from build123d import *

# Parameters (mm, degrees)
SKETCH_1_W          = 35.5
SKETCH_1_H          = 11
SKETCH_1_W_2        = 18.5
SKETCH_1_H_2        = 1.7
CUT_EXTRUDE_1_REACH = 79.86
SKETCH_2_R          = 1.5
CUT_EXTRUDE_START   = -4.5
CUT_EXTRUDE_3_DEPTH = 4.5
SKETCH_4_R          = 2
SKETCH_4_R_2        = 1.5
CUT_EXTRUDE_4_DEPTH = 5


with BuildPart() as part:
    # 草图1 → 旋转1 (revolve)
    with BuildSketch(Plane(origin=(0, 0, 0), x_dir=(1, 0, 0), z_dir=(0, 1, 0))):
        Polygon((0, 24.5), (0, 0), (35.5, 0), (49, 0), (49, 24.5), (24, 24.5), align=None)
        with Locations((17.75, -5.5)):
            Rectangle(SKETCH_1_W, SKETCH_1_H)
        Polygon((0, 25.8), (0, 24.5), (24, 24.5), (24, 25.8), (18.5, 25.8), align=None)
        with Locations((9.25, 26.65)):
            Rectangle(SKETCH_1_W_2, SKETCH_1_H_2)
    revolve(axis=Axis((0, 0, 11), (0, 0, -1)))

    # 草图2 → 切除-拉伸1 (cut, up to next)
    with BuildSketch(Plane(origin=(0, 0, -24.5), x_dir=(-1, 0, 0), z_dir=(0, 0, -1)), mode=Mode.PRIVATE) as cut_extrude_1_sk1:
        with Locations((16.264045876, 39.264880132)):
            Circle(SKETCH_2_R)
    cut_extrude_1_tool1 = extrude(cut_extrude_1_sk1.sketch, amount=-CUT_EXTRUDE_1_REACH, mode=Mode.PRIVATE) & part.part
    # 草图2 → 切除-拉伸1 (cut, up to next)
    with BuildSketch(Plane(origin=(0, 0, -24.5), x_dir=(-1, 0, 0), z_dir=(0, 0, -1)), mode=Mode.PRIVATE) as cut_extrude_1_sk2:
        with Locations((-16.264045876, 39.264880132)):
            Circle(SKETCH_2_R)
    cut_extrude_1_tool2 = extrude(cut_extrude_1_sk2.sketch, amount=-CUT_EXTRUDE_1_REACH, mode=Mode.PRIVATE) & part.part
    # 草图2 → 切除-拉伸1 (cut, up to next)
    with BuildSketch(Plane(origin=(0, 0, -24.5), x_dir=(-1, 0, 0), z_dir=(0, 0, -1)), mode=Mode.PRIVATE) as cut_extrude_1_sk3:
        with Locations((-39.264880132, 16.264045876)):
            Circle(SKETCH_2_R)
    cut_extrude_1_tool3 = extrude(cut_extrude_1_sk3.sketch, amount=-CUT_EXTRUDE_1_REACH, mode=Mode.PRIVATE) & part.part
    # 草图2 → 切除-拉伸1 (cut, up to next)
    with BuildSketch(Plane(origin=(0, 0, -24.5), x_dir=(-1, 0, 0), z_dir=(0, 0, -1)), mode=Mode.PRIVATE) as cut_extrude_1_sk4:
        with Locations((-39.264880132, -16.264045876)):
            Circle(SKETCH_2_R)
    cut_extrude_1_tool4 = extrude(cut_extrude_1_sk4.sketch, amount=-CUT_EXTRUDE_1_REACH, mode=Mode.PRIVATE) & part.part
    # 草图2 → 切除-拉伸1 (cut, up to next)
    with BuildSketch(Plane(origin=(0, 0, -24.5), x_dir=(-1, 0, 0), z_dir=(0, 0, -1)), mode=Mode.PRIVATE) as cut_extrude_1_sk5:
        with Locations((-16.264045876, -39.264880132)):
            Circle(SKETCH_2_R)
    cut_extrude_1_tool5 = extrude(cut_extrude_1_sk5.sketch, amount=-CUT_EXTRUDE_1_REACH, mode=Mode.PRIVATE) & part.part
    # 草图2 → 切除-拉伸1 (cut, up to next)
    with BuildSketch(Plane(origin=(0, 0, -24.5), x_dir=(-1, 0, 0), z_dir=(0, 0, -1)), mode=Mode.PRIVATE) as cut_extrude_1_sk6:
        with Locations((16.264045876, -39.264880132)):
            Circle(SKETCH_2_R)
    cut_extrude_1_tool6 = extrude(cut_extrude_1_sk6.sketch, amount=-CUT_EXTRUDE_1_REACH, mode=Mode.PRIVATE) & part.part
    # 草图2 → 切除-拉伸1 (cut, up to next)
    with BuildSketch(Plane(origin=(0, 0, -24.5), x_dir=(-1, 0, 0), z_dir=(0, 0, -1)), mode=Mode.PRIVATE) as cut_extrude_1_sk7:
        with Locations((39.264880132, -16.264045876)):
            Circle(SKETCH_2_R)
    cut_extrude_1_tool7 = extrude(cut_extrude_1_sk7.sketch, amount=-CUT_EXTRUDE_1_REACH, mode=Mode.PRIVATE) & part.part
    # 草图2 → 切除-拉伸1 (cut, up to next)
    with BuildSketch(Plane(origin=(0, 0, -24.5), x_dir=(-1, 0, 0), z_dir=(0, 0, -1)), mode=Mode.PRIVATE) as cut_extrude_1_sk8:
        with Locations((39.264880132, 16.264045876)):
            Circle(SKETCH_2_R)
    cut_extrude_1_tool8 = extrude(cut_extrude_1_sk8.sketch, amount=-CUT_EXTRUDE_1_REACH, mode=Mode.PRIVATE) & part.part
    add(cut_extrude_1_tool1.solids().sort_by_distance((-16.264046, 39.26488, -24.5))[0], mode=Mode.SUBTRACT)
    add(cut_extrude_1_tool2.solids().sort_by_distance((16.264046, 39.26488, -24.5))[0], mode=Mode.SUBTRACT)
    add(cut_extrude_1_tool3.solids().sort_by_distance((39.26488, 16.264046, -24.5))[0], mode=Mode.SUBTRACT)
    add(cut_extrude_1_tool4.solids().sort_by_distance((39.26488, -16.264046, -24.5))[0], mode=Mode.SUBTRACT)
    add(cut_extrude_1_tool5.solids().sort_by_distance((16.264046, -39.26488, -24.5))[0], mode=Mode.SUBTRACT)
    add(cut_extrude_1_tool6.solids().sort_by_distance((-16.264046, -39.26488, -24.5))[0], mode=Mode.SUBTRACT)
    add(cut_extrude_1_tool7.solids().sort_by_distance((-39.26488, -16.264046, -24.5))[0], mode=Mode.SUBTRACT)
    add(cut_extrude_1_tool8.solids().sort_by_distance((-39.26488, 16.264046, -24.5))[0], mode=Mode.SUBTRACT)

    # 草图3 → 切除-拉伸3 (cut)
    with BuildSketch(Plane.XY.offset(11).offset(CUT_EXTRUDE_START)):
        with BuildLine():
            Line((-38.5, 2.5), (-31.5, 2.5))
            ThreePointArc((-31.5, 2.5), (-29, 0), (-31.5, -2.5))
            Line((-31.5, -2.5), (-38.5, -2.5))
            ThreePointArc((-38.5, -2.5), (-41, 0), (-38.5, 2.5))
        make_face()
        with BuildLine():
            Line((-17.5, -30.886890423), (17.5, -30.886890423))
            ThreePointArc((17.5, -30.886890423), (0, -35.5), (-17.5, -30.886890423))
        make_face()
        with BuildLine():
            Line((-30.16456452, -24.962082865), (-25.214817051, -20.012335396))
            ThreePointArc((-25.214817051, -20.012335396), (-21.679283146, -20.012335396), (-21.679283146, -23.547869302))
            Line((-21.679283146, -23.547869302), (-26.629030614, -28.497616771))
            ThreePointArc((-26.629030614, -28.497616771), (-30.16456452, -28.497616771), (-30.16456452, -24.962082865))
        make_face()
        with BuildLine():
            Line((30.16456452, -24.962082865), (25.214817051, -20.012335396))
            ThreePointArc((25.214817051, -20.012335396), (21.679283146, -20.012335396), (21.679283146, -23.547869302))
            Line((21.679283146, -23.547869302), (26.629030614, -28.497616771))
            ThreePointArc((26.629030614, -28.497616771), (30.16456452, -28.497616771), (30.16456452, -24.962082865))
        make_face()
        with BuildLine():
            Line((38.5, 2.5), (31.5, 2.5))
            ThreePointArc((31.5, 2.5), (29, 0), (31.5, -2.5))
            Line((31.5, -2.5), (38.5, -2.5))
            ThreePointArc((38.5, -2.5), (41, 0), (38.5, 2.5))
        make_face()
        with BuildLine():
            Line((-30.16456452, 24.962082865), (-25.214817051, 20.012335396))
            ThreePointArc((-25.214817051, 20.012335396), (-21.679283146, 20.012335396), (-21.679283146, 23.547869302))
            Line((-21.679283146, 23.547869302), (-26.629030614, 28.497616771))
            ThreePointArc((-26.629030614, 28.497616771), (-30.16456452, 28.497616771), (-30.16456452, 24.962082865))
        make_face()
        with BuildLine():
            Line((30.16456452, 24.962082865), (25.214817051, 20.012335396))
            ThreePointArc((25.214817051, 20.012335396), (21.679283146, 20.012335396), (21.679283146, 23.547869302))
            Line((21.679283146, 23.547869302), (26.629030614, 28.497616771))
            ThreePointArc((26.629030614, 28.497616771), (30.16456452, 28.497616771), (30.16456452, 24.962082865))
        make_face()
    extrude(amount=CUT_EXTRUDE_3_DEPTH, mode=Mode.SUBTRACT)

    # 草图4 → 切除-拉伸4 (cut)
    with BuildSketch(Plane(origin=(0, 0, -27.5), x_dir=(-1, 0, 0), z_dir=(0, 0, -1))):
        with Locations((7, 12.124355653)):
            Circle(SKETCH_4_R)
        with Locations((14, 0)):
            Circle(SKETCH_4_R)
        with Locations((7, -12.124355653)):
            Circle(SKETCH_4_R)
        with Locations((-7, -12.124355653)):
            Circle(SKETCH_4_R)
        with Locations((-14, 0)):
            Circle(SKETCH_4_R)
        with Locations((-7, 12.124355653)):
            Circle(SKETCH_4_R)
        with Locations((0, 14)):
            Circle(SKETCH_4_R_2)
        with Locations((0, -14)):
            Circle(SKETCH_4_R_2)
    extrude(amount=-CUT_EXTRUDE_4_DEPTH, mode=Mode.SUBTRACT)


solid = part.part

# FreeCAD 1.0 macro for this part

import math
import FreeCAD as App
import Part
import Sketcher
Q = App.Units.Quantity


def add_polygon(sketch, points):
    """Adds a closed chain of lines whose ends are joined by coincident constraints."""
    first, n = sketch.GeometryCount, len(points)
    for a, b in zip(points, points[1:] + points[:1]):
        sketch.addGeometry(Part.LineSegment(App.Vector(*a, 0), App.Vector(*b, 0)), False)
    for i in range(n):
        sketch.addConstraint(Sketcher.Constraint("Coincident", first + i, 2, first + (i + 1) % n, 1))

doc = App.newDocument("Part")
body = doc.addObject("PartDesign::Body", "Body")

sketch1 = body.newObject("Sketcher::SketchObject", "Sketch")
sketch1.AttachmentSupport = (doc.getObject("XZ_Plane"), [""])
sketch1.MapMode = "FlatFace"
add_polygon(sketch1, [(0, 11), (35.5, 11), (35.5, 0), (49, 0), (49, -24.5), (24, -24.5), (24, -25.8), (18.5, -25.8), (18.5, -27.5), (0, -27.5)])
sketch1.addConstraint([
    Sketcher.Constraint("Horizontal", 0),
    Sketcher.Constraint("Vertical", 1),
    Sketcher.Constraint("Horizontal", 2),
    Sketcher.Constraint("Vertical", 3),
    Sketcher.Constraint("Horizontal", 4),
    Sketcher.Constraint("Vertical", 5),
    Sketcher.Constraint("Horizontal", 6),
    Sketcher.Constraint("Vertical", 7),
    Sketcher.Constraint("Horizontal", 8),
    Sketcher.Constraint("Vertical", 9),
    Sketcher.Constraint("PointOnObject", 1, 2, -1),
    Sketcher.Constraint("PointOnObject", 8, 2, -2),
    Sketcher.Constraint("DistanceX", 4, 2, 4, 1, Q("25 mm")),
    Sketcher.Constraint("DistanceY", 1, 2, 1, 1, Q("11 mm")),
    Sketcher.Constraint("DistanceX", 0, 1, 0, 2, Q("35.5 mm")),
    Sketcher.Constraint("DistanceX", 2, 1, 2, 2, Q("13.5 mm")),
    Sketcher.Constraint("DistanceX", 6, 2, 6, 1, Q("5.5 mm")),
    Sketcher.Constraint("DistanceY", 3, 2, 3, 1, Q("24.5 mm")),
    Sketcher.Constraint("DistanceY", 5, 2, 5, 1, Q("1.3 mm")),
    Sketcher.Constraint("DistanceY", 7, 2, 7, 1, Q("1.7 mm")),
])
revolution = body.newObject("PartDesign::Revolution", "Revolution")
revolution.Profile = sketch1
revolution.ReferenceAxis = (sketch1, ["V_Axis"])
revolution.Angle = 360

sketch2 = body.newObject("Sketcher::SketchObject", "Sketch001")
sketch2.AttachmentSupport = (doc.getObject("XY_Plane"), [""])
sketch2.MapMode = "FlatFace"
sketch2.AttachmentOffset = App.Placement(App.Vector(0, 0, -24.5), App.Rotation())
sketch2.addGeometry(Part.Circle(App.Vector(-16.3, 39.3, 0), App.Vector(0, 0, 1), 1.5), False)
sketch2.addConstraint([
    Sketcher.Constraint("Diameter", 0, Q("3 mm")),
    Sketcher.Constraint("DistanceY", -1, 1, 0, 3, Q("39.26488 mm")),
    Sketcher.Constraint("DistanceX", 0, 3, -1, 1, Q("16.264046 mm")),
])
pocket1 = body.newObject("PartDesign::Pocket", "Pocket")
pocket1.Profile = sketch2
pocket1.Type = "UpToFirst"
pocket1.Reversed = True

sketch3 = body.newObject("Sketcher::SketchObject", "Sketch002")
sketch3.AttachmentSupport = (doc.getObject("XY_Plane"), [""])
sketch3.MapMode = "FlatFace"
sketch3.AttachmentOffset = App.Placement(App.Vector(0, 0, -24.5), App.Rotation())
sketch3.addGeometry(Part.Circle(App.Vector(16.3, 39.3, 0), App.Vector(0, 0, 1), 1.5), False)
sketch3.addConstraint([
    Sketcher.Constraint("Diameter", 0, Q("3 mm")),
    Sketcher.Constraint("DistanceY", -1, 1, 0, 3, Q("39.26488 mm")),
    Sketcher.Constraint("DistanceX", -1, 1, 0, 3, Q("16.264046 mm")),
])
pocket2 = body.newObject("PartDesign::Pocket", "Pocket001")
pocket2.Profile = sketch3
pocket2.Type = "UpToFirst"
pocket2.Reversed = True

sketch4 = body.newObject("Sketcher::SketchObject", "Sketch003")
sketch4.AttachmentSupport = (doc.getObject("XY_Plane"), [""])
sketch4.MapMode = "FlatFace"
sketch4.AttachmentOffset = App.Placement(App.Vector(0, 0, -24.5), App.Rotation())
sketch4.addGeometry(Part.Circle(App.Vector(39.3, 16.3, 0), App.Vector(0, 0, 1), 1.5), False)
sketch4.addConstraint([
    Sketcher.Constraint("Diameter", 0, Q("3 mm")),
    Sketcher.Constraint("DistanceX", -1, 1, 0, 3, Q("39.26488 mm")),
    Sketcher.Constraint("DistanceY", -1, 1, 0, 3, Q("16.264046 mm")),
])
pocket3 = body.newObject("PartDesign::Pocket", "Pocket002")
pocket3.Profile = sketch4
pocket3.Type = "UpToFirst"
pocket3.Reversed = True

sketch5 = body.newObject("Sketcher::SketchObject", "Sketch004")
sketch5.AttachmentSupport = (doc.getObject("XY_Plane"), [""])
sketch5.MapMode = "FlatFace"
sketch5.AttachmentOffset = App.Placement(App.Vector(0, 0, -24.5), App.Rotation())
sketch5.addGeometry(Part.Circle(App.Vector(39.3, -16.3, 0), App.Vector(0, 0, 1), 1.5), False)
sketch5.addConstraint([
    Sketcher.Constraint("Diameter", 0, Q("3 mm")),
    Sketcher.Constraint("DistanceX", -1, 1, 0, 3, Q("39.26488 mm")),
    Sketcher.Constraint("DistanceY", 0, 3, -1, 1, Q("16.264046 mm")),
])
pocket4 = body.newObject("PartDesign::Pocket", "Pocket003")
pocket4.Profile = sketch5
pocket4.Type = "UpToFirst"
pocket4.Reversed = True

sketch6 = body.newObject("Sketcher::SketchObject", "Sketch005")
sketch6.AttachmentSupport = (doc.getObject("XY_Plane"), [""])
sketch6.MapMode = "FlatFace"
sketch6.AttachmentOffset = App.Placement(App.Vector(0, 0, -24.5), App.Rotation())
sketch6.addGeometry(Part.Circle(App.Vector(16.3, -39.3, 0), App.Vector(0, 0, 1), 1.5), False)
sketch6.addConstraint([
    Sketcher.Constraint("Diameter", 0, Q("3 mm")),
    Sketcher.Constraint("DistanceY", 0, 3, -1, 1, Q("39.26488 mm")),
    Sketcher.Constraint("DistanceX", -1, 1, 0, 3, Q("16.264046 mm")),
])
pocket5 = body.newObject("PartDesign::Pocket", "Pocket004")
pocket5.Profile = sketch6
pocket5.Type = "UpToFirst"
pocket5.Reversed = True

sketch7 = body.newObject("Sketcher::SketchObject", "Sketch006")
sketch7.AttachmentSupport = (doc.getObject("XY_Plane"), [""])
sketch7.MapMode = "FlatFace"
sketch7.AttachmentOffset = App.Placement(App.Vector(0, 0, -24.5), App.Rotation())
sketch7.addGeometry(Part.Circle(App.Vector(-16.3, -39.3, 0), App.Vector(0, 0, 1), 1.5), False)
sketch7.addConstraint([
    Sketcher.Constraint("Diameter", 0, Q("3 mm")),
    Sketcher.Constraint("DistanceY", 0, 3, -1, 1, Q("39.26488 mm")),
    Sketcher.Constraint("DistanceX", 0, 3, -1, 1, Q("16.264046 mm")),
])
pocket6 = body.newObject("PartDesign::Pocket", "Pocket005")
pocket6.Profile = sketch7
pocket6.Type = "UpToFirst"
pocket6.Reversed = True

sketch8 = body.newObject("Sketcher::SketchObject", "Sketch007")
sketch8.AttachmentSupport = (doc.getObject("XY_Plane"), [""])
sketch8.MapMode = "FlatFace"
sketch8.AttachmentOffset = App.Placement(App.Vector(0, 0, -24.5), App.Rotation())
sketch8.addGeometry(Part.Circle(App.Vector(-39.3, -16.3, 0), App.Vector(0, 0, 1), 1.5), False)
sketch8.addConstraint([
    Sketcher.Constraint("Diameter", 0, Q("3 mm")),
    Sketcher.Constraint("DistanceX", 0, 3, -1, 1, Q("39.26488 mm")),
    Sketcher.Constraint("DistanceY", 0, 3, -1, 1, Q("16.264046 mm")),
])
pocket7 = body.newObject("PartDesign::Pocket", "Pocket006")
pocket7.Profile = sketch8
pocket7.Type = "UpToFirst"
pocket7.Reversed = True

sketch9 = body.newObject("Sketcher::SketchObject", "Sketch008")
sketch9.AttachmentSupport = (doc.getObject("XY_Plane"), [""])
sketch9.MapMode = "FlatFace"
sketch9.AttachmentOffset = App.Placement(App.Vector(0, 0, -24.5), App.Rotation())
sketch9.addGeometry(Part.Circle(App.Vector(-39.3, 16.3, 0), App.Vector(0, 0, 1), 1.5), False)
sketch9.addConstraint([
    Sketcher.Constraint("Diameter", 0, Q("3 mm")),
    Sketcher.Constraint("DistanceX", 0, 3, -1, 1, Q("39.26488 mm")),
    Sketcher.Constraint("DistanceY", -1, 1, 0, 3, Q("16.264046 mm")),
])
pocket8 = body.newObject("PartDesign::Pocket", "Pocket007")
pocket8.Profile = sketch9
pocket8.Type = "UpToFirst"
pocket8.Reversed = True

sketch10 = body.newObject("Sketcher::SketchObject", "Sketch009")
sketch10.AttachmentSupport = (doc.getObject("XY_Plane"), [""])
sketch10.MapMode = "FlatFace"
sketch10.AttachmentOffset = App.Placement(App.Vector(0, 0, 6.5), App.Rotation())
sketch10.addGeometry([
    Part.LineSegment(App.Vector(-31.5, 2.5, 0), App.Vector(-38.5, 2.5, 0)),
    Part.ArcOfCircle(Part.Circle(App.Vector(-38.5, 0, 0), App.Vector(0, 0, 1), 2.5), math.radians(90), math.radians(270)),
    Part.LineSegment(App.Vector(-38.5, -2.5, 0), App.Vector(-31.5, -2.5, 0)),
    Part.ArcOfCircle(Part.Circle(App.Vector(-31.5, 0, 0), App.Vector(0, 0, 1), 2.5), math.radians(-90), math.radians(90)),
    Part.LineSegment(App.Vector(17.5, -30.9, 0), App.Vector(-17.5, -30.9, 0)),
    Part.ArcOfCircle(Part.Circle(App.Vector(0, 0, 0), App.Vector(0, 0, 1), 35.5), math.radians(-120), math.radians(-60)),
    Part.LineSegment(App.Vector(-25.2, -20, 0), App.Vector(-30.2, -25, 0)),
    Part.ArcOfCircle(Part.Circle(App.Vector(-28.4, -26.7, 0), App.Vector(0, 0, 1), 2.5), math.radians(135), math.radians(315)),
    Part.LineSegment(App.Vector(-26.6, -28.5, 0), App.Vector(-21.7, -23.5, 0)),
    Part.ArcOfCircle(Part.Circle(App.Vector(-23.4, -21.8, 0), App.Vector(0, 0, 1), 2.5), math.radians(-45), math.radians(135)),
    Part.LineSegment(App.Vector(30.2, -25, 0), App.Vector(25.2, -20, 0)),
    Part.ArcOfCircle(Part.Circle(App.Vector(23.4, -21.8, 0), App.Vector(0, 0, 1), 2.5), math.radians(45), math.radians(225)),
    Part.LineSegment(App.Vector(21.7, -23.5, 0), App.Vector(26.6, -28.5, 0)),
    Part.ArcOfCircle(Part.Circle(App.Vector(28.4, -26.7, 0), App.Vector(0, 0, 1), 2.5), math.radians(-135), math.radians(45)),
    Part.LineSegment(App.Vector(38.5, 2.5, 0), App.Vector(31.5, 2.5, 0)),
    Part.ArcOfCircle(Part.Circle(App.Vector(31.5, 0, 0), App.Vector(0, 0, 1), 2.5), math.radians(90), math.radians(270)),
    Part.LineSegment(App.Vector(31.5, -2.5, 0), App.Vector(38.5, -2.5, 0)),
    Part.ArcOfCircle(Part.Circle(App.Vector(38.5, 0, 0), App.Vector(0, 0, 1), 2.5), math.radians(-90), math.radians(90)),
    Part.LineSegment(App.Vector(-30.2, 25, 0), App.Vector(-25.2, 20, 0)),
    Part.ArcOfCircle(Part.Circle(App.Vector(-23.4, 21.8, 0), App.Vector(0, 0, 1), 2.5), math.radians(-135), math.radians(45)),
    Part.LineSegment(App.Vector(-21.7, 23.5, 0), App.Vector(-26.6, 28.5, 0)),
    Part.ArcOfCircle(Part.Circle(App.Vector(-28.4, 26.7, 0), App.Vector(0, 0, 1), 2.5), math.radians(45), math.radians(225)),
    Part.LineSegment(App.Vector(25.2, 20, 0), App.Vector(30.2, 25, 0)),
    Part.ArcOfCircle(Part.Circle(App.Vector(28.4, 26.7, 0), App.Vector(0, 0, 1), 2.5), math.radians(-45), math.radians(135)),
    Part.LineSegment(App.Vector(26.6, 28.5, 0), App.Vector(21.7, 23.5, 0)),
    Part.ArcOfCircle(Part.Circle(App.Vector(23.4, 21.8, 0), App.Vector(0, 0, 1), 2.5), math.radians(135), math.radians(315)),
], False)
sketch10.addConstraint([
    Sketcher.Constraint("Tangent", 0, 2, 1, 1),
    Sketcher.Constraint("Tangent", 1, 2, 2, 1),
    Sketcher.Constraint("Tangent", 2, 2, 3, 1),
    Sketcher.Constraint("Tangent", 3, 2, 0, 1),
    Sketcher.Constraint("Coincident", 4, 1, 5, 2),
    Sketcher.Constraint("Coincident", 5, 1, 4, 2),
    Sketcher.Constraint("Tangent", 6, 2, 7, 1),
    Sketcher.Constraint("Tangent", 7, 2, 8, 1),
    Sketcher.Constraint("Tangent", 8, 2, 9, 1),
    Sketcher.Constraint("Tangent", 9, 2, 6, 1),
    Sketcher.Constraint("Tangent", 10, 2, 11, 1),
    Sketcher.Constraint("Tangent", 11, 2, 12, 1),
    Sketcher.Constraint("Tangent", 12, 2, 13, 1),
    Sketcher.Constraint("Tangent", 13, 2, 10, 1),
    Sketcher.Constraint("Tangent", 14, 2, 15, 1),
    Sketcher.Constraint("Tangent", 15, 2, 16, 1),
    Sketcher.Constraint("Tangent", 16, 2, 17, 1),
    Sketcher.Constraint("Tangent", 17, 2, 14, 1),
    Sketcher.Constraint("Tangent", 18, 2, 19, 1),
    Sketcher.Constraint("Tangent", 19, 2, 20, 1),
    Sketcher.Constraint("Tangent", 20, 2, 21, 1),
    Sketcher.Constraint("Tangent", 21, 2, 18, 1),
    Sketcher.Constraint("Tangent", 22, 2, 23, 1),
    Sketcher.Constraint("Tangent", 23, 2, 24, 1),
    Sketcher.Constraint("Tangent", 24, 2, 25, 1),
    Sketcher.Constraint("Tangent", 25, 2, 22, 1),
    Sketcher.Constraint("Horizontal", 0),
    Sketcher.Constraint("Horizontal", 2),
    Sketcher.Constraint("Horizontal", 4),
    Sketcher.Constraint("Horizontal", 14),
    Sketcher.Constraint("Horizontal", 16),
    Sketcher.Constraint("Coincident", 5, 3, -1, 1),
    Sketcher.Constraint("Equal", 3, 7),
    Sketcher.Constraint("Equal", 7, 9),
    Sketcher.Constraint("Equal", 9, 11),
    Sketcher.Constraint("Equal", 11, 13),
    Sketcher.Constraint("Equal", 13, 15),
    Sketcher.Constraint("Equal", 17, 19),
    Sketcher.Constraint("Equal", 19, 21),
    Sketcher.Constraint("Equal", 21, 23),
    Sketcher.Constraint("Equal", 23, 25),
    Sketcher.Constraint("Symmetric", 3, 3, 15, 3, -1, 1),
    Sketcher.Constraint("Symmetric", 11, 3, 19, 3, -1, 1),
    Sketcher.Constraint("Symmetric", 13, 3, 21, 3, -1, 1),
    Sketcher.Constraint("Symmetric", 7, 3, 23, 3, -1, 1),
    Sketcher.Constraint("Symmetric", 9, 3, 25, 3, -1, 1),
    Sketcher.Constraint("Symmetric", 9, 3, 11, 3, -2),
    Sketcher.Constraint("Symmetric", 7, 3, 13, 3, -2),
    Sketcher.Constraint("Symmetric", 1, 3, 17, 3, -2),
    Sketcher.Constraint("Perpendicular", 8, 10),
    Sketcher.Constraint("Radius", 1, Q("2.5 mm")),
    Sketcher.Constraint("Radius", 5, Q("35.5 mm")),
    Sketcher.Constraint("DistanceX", 0, 2, 0, 1, Q("7 mm")),
    Sketcher.Constraint("DistanceX", 4, 2, 4, 1, Q("35 mm")),
    Sketcher.Constraint("Distance", 6, Q("7 mm")),
    Sketcher.Constraint("DistanceX", 3, 3, 15, 3, Q("63 mm")),
    Sketcher.Constraint("DistanceX", 9, 3, 11, 3, Q("46.8941 mm")),
    Sketcher.Constraint("DistanceY", 7, 3, -1, 1, Q("26.72985 mm")),
])
pocket9 = body.newObject("PartDesign::Pocket", "Pocket008")
pocket9.Profile = sketch10
pocket9.Length = 4.5
pocket9.Reversed = True

sketch11 = body.newObject("Sketcher::SketchObject", "Sketch010")
sketch11.AttachmentSupport = (doc.getObject("XY_Plane"), [""])
sketch11.MapMode = "FlatFace"
sketch11.AttachmentOffset = App.Placement(App.Vector(0, 0, -27.5), App.Rotation())
sketch11.addGeometry([
    Part.Circle(App.Vector(-7, 12.1, 0), App.Vector(0, 0, 1), 2),
    Part.Circle(App.Vector(-14, 0, 0), App.Vector(0, 0, 1), 2),
    Part.Circle(App.Vector(-7, -12.1, 0), App.Vector(0, 0, 1), 2),
    Part.Circle(App.Vector(7, -12.1, 0), App.Vector(0, 0, 1), 2),
    Part.Circle(App.Vector(14, 0, 0), App.Vector(0, 0, 1), 2),
    Part.Circle(App.Vector(7, 12.1, 0), App.Vector(0, 0, 1), 2),
    Part.Circle(App.Vector(0, 14, 0), App.Vector(0, 0, 1), 1.5),
    Part.Circle(App.Vector(0, -14, 0), App.Vector(0, 0, 1), 1.5),
], False)
sketch11.addConstraint([
    Sketcher.Constraint("Equal", 0, 1),
    Sketcher.Constraint("Equal", 1, 2),
    Sketcher.Constraint("Equal", 2, 3),
    Sketcher.Constraint("Equal", 3, 4),
    Sketcher.Constraint("Equal", 4, 5),
    Sketcher.Constraint("Equal", 6, 7),
    Sketcher.Constraint("Symmetric", 0, 3, 3, 3, -1, 1),
    Sketcher.Constraint("Symmetric", 1, 3, 4, 3, -1, 1),
    Sketcher.Constraint("Symmetric", 2, 3, 5, 3, -1, 1),
    Sketcher.Constraint("Symmetric", 6, 3, 7, 3, -1, 1),
    Sketcher.Constraint("Symmetric", 2, 3, 3, 3, -2),
    Sketcher.Constraint("PointOnObject", 1, 3, -1),
    Sketcher.Constraint("PointOnObject", 6, 3, -2),
    Sketcher.Constraint("Diameter", 0, Q("4 mm")),
    Sketcher.Constraint("Diameter", 6, Q("3 mm")),
    Sketcher.Constraint("DistanceX", 0, 3, -1, 1, Q("7 mm")),
    Sketcher.Constraint("DistanceX", 1, 3, -1, 1, Q("14 mm")),
    Sketcher.Constraint("DistanceY", -1, 1, 6, 3, Q("14 mm")),
    Sketcher.Constraint("DistanceY", 2, 3, 0, 3, Q("24.248711 mm")),
])
pocket10 = body.newObject("PartDesign::Pocket", "Pocket009")
pocket10.Profile = sketch11
pocket10.Length = 5
pocket10.Reversed = True

doc.recompute()
